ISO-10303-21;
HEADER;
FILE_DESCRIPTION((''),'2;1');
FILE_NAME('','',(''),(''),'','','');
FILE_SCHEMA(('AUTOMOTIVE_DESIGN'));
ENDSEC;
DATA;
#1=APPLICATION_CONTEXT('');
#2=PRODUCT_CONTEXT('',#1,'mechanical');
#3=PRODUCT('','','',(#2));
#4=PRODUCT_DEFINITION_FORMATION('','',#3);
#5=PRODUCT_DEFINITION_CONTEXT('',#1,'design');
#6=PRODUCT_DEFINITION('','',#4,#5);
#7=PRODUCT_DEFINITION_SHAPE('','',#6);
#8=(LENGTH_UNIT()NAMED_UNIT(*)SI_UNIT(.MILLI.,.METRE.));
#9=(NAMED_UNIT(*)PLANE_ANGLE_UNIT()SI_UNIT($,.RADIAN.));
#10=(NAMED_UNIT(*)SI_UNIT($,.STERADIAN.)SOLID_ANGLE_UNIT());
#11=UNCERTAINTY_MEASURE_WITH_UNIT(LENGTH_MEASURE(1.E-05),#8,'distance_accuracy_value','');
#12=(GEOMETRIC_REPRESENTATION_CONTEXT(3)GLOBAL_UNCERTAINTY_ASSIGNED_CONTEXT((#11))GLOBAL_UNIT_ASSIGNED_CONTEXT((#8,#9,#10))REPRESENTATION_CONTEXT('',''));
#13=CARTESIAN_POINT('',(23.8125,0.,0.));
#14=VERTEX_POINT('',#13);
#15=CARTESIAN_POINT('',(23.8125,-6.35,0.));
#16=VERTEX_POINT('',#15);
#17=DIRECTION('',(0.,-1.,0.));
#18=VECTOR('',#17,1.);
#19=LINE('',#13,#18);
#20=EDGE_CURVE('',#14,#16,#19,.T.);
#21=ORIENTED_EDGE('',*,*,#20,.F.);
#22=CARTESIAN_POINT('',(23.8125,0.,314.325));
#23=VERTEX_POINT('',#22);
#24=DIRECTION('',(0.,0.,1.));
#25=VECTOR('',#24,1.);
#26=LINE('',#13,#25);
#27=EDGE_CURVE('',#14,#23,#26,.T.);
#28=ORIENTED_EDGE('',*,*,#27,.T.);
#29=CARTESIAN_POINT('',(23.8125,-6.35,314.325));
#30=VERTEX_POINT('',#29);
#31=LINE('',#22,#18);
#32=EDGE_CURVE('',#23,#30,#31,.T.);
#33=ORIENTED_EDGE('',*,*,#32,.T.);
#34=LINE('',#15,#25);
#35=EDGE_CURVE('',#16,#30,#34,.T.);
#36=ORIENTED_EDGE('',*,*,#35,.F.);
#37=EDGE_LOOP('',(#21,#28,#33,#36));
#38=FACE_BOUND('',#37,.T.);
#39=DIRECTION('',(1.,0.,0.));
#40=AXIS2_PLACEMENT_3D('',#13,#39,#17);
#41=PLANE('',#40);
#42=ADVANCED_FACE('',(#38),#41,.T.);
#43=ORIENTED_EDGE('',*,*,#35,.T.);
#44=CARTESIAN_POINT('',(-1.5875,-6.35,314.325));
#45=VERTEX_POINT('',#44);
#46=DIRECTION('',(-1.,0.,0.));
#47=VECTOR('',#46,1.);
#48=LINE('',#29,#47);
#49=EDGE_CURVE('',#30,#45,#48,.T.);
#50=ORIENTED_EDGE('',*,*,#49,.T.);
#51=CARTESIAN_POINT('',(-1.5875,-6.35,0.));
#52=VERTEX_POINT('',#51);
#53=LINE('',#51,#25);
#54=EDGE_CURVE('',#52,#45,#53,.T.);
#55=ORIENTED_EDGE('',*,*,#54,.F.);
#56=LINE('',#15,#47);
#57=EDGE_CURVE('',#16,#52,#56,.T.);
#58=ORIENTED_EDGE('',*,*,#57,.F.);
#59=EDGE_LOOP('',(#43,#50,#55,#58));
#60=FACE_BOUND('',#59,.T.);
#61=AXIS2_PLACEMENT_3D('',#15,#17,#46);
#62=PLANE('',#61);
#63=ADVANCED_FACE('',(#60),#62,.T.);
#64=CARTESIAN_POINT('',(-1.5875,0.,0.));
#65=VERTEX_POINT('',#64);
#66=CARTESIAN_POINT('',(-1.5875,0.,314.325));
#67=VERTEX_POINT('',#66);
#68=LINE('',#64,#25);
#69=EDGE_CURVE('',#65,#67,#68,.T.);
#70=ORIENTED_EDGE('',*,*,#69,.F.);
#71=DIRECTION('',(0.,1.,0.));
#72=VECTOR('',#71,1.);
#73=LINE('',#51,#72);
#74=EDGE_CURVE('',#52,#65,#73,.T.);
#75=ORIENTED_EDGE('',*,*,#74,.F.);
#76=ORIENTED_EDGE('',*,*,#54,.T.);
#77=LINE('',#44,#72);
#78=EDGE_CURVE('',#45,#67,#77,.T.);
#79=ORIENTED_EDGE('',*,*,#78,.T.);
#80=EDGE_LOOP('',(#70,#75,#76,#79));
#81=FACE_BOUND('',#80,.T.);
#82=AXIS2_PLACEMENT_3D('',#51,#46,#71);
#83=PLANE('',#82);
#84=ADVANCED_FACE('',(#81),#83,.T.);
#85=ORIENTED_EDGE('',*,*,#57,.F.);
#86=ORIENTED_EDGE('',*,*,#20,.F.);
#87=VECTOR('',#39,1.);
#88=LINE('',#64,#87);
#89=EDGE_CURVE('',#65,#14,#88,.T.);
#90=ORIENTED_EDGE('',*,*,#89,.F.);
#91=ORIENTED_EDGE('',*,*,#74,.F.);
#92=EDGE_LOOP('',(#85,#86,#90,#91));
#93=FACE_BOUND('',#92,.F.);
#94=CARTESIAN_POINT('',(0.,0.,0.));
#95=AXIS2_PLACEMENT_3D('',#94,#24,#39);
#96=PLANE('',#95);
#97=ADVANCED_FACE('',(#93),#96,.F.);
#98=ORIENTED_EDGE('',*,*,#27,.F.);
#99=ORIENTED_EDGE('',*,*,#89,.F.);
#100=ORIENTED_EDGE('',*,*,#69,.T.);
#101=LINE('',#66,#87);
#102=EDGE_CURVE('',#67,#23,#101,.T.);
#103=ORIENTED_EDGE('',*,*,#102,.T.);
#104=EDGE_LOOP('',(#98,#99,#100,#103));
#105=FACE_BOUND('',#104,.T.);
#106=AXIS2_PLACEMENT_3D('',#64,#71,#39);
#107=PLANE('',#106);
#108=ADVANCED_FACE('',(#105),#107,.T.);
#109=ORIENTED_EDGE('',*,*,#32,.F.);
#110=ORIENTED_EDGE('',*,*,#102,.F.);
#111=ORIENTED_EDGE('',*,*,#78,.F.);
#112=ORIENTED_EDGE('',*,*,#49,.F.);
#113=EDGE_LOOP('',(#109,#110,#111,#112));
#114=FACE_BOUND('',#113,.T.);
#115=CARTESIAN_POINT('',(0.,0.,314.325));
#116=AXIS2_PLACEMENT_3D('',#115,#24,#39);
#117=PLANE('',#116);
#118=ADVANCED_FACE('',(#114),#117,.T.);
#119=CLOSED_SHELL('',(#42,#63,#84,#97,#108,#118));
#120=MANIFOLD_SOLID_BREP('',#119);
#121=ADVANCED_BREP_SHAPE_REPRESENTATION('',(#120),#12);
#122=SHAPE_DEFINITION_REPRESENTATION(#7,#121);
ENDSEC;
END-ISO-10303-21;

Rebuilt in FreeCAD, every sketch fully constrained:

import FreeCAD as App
import Part
import Sketcher
from FreeCAD import Vector
Q = App.Units.Quantity


def add_polygon(sketch, points):
    """Adds a closed chain of lines whose ends are joined by coincident constraints."""
    first, n = sketch.GeometryCount, len(points)
    for a, b in zip(points, points[1:] + points[:1]):
        sketch.addGeometry(Part.LineSegment(App.Vector(*a, 0), App.Vector(*b, 0)), False)
    for i in range(n):
        sketch.addConstraint(Sketcher.Constraint("Coincident", first + i, 2, first + (i + 1) % n, 1))

doc = App.newDocument("Part")
body = doc.addObject("PartDesign::Body", "Body")

# Sketch on XY plane
sketch1 = doc.addObject("Sketcher::SketchObject", "Sketch")
body.addObject(sketch1)
sketch1.AttachmentSupport = (doc.XY_Plane, [""])
sketch1.MapMode = "FlatFace"
add_polygon(sketch1, [(24, 0), (-2, 0), (-2, -6), (24, -6)])  # lines 0-3
sketch1.addConstraint(Sketcher.Constraint("Horizontal", 0))
sketch1.addConstraint(Sketcher.Constraint("Vertical", 1))
sketch1.addConstraint(Sketcher.Constraint("Horizontal", 2))
sketch1.addConstraint(Sketcher.Constraint("Vertical", 3))
sketch1.addConstraint(Sketcher.Constraint("PointOnObject", 0, 2, -1))
sketch1.addConstraint(Sketcher.Constraint("DistanceX", 0, 2, 0, 1, Q("1 in")))
sketch1.addConstraint(Sketcher.Constraint("DistanceY", 1, 2, 1, 1, Q("0.25 in")))
sketch1.addConstraint(Sketcher.Constraint("DistanceX", 0, 2, -1, 1, Q("0.0625 in")))
pad1 = doc.addObject("PartDesign::Pad", "Pad")
body.addObject(pad1)
pad1.Profile = sketch1
pad1.Length = Q("12.375 in")

doc.recompute()
